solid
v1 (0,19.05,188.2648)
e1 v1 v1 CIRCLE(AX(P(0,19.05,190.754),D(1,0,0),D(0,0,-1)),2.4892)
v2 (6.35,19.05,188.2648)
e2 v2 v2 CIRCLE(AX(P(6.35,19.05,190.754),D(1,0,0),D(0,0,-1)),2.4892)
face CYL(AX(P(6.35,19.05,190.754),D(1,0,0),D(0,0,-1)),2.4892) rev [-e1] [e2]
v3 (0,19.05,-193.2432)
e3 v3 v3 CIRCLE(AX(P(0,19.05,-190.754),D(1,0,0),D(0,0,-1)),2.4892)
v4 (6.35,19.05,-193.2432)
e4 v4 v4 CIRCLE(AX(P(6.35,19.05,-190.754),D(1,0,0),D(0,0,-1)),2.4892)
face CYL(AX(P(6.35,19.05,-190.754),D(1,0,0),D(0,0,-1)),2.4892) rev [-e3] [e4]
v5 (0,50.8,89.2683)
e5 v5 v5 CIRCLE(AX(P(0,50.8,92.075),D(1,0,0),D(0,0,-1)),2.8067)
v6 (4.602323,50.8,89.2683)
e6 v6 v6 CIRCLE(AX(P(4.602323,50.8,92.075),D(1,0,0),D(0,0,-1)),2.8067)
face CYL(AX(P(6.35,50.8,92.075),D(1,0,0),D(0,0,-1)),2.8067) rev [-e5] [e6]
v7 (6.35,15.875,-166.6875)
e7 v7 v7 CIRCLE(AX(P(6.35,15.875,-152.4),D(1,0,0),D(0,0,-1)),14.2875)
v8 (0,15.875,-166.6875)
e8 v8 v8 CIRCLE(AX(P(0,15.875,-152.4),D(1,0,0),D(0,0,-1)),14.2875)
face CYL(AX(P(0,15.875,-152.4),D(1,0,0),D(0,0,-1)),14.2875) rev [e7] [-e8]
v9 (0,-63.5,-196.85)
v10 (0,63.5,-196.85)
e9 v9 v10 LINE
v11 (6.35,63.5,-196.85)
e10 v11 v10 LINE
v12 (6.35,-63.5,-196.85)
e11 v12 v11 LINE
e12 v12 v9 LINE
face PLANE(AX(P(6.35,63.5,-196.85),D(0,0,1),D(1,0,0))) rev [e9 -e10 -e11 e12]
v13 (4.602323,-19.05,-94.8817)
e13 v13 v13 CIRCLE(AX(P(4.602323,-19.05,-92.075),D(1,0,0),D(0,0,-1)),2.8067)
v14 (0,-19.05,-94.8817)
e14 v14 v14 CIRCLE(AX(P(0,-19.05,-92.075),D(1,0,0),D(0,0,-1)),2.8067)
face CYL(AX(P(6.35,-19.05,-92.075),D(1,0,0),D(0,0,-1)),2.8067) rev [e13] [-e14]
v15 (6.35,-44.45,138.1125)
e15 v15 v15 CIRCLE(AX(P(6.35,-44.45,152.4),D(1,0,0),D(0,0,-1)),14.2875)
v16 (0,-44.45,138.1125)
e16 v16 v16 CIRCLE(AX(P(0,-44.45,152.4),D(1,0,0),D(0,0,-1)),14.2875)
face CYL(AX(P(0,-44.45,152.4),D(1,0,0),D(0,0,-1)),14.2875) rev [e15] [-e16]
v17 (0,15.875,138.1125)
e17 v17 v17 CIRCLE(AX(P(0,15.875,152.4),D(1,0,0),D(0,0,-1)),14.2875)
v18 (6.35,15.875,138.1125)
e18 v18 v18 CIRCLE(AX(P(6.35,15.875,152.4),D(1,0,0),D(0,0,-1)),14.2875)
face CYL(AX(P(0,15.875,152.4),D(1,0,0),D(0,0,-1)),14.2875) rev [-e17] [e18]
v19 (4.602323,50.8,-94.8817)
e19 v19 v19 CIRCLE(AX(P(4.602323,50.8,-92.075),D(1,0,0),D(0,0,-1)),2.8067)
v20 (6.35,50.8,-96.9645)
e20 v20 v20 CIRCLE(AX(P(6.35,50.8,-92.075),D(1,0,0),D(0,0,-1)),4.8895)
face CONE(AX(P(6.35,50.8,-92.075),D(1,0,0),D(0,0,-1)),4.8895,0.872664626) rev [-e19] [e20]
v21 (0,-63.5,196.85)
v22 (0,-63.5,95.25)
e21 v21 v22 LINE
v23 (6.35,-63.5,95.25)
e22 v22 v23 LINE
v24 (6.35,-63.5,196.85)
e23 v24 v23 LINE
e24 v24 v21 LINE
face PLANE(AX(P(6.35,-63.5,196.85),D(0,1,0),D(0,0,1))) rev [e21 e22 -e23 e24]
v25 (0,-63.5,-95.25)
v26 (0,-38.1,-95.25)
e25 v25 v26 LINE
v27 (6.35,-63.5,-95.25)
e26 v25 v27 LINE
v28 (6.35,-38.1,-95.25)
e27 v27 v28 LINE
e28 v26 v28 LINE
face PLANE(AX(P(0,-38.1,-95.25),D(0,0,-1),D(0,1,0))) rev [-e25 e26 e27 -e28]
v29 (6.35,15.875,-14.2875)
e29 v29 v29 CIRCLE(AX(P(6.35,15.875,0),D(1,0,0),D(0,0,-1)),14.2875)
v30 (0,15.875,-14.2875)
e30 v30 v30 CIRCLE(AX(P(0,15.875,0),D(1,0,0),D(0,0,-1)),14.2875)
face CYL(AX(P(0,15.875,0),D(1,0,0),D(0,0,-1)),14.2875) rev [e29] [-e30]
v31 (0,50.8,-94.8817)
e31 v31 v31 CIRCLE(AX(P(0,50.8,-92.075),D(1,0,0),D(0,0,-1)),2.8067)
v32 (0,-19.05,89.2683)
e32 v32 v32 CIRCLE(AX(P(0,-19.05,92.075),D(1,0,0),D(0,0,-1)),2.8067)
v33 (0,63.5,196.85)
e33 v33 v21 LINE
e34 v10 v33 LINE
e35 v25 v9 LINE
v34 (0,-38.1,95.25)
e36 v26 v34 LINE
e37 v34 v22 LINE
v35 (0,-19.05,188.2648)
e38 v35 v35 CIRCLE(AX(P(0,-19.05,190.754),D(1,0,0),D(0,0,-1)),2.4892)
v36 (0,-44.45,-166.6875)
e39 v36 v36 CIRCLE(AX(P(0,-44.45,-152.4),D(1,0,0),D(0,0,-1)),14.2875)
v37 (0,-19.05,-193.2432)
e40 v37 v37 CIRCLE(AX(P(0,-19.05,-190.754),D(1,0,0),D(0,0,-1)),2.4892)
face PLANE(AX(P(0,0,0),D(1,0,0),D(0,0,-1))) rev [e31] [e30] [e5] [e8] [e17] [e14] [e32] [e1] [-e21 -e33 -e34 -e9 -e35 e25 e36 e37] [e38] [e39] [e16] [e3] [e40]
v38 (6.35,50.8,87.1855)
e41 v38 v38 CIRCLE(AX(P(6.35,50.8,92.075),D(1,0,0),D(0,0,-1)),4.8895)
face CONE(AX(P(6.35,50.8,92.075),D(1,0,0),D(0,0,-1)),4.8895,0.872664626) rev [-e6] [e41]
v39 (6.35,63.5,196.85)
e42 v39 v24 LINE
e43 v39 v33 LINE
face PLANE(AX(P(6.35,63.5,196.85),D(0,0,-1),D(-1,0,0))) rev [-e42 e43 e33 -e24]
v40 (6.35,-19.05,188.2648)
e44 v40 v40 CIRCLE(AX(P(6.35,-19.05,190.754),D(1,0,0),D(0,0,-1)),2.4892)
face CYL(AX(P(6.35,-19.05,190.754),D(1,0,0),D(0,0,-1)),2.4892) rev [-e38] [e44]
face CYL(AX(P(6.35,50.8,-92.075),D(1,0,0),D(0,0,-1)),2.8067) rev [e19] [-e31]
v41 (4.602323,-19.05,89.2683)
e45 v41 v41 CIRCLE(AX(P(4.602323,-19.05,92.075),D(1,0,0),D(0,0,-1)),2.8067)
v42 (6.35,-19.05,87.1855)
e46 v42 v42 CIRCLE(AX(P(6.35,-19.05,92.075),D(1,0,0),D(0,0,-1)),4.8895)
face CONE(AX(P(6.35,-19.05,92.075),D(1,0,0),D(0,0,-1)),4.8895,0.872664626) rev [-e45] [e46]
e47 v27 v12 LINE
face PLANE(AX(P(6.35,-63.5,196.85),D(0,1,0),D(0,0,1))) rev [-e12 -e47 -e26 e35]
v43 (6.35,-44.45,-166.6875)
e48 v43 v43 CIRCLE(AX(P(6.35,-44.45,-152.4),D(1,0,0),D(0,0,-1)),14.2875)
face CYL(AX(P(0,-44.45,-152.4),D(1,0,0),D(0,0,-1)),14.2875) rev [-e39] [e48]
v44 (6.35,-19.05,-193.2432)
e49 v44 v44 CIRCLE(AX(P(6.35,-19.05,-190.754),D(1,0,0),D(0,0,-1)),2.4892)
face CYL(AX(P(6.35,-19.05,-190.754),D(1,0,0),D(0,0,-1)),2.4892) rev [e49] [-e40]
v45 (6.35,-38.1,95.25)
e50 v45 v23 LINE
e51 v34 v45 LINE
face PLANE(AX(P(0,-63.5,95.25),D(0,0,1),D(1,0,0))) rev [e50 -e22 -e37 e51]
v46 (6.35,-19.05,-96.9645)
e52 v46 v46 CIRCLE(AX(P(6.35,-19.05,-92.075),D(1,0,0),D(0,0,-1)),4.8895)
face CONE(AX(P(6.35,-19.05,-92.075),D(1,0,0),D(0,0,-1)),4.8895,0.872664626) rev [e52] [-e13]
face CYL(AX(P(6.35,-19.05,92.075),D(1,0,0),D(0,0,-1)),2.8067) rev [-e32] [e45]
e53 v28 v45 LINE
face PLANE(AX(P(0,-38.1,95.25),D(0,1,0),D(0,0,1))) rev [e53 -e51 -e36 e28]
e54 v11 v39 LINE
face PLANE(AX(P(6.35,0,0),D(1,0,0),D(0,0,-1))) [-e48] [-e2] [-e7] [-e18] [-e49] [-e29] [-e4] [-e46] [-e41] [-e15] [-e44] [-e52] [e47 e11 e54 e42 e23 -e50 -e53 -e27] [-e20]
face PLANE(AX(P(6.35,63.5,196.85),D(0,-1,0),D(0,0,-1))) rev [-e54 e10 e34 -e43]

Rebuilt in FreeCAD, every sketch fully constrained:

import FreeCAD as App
import Part
import Sketcher

V = App.Vector
Q = App.Units.Quantity


def add_polygon(sketch, points):
    """Adds a closed chain of lines whose ends are joined by coincident constraints."""
    first, n = sketch.GeometryCount, len(points)
    for a, b in zip(points, points[1:] + points[:1]):
        sketch.addGeometry(Part.LineSegment(App.Vector(*a, 0), App.Vector(*b, 0)), False)
    for i in range(n):
        sketch.addConstraint(Sketcher.Constraint("Coincident", first + i, 2, first + (i + 1) % n, 1))

doc = App.newDocument("Part")
body = doc.addObject("PartDesign::Body", "Body")

# Sketch on YZ plane
sketch1 = body.newObject("Sketcher::SketchObject", "Sketch")
sketch1.AttachmentSupport = (doc.getObject("YZ_Plane"), [""])
sketch1.MapMode = "FlatFace"
add_polygon(sketch1, [(64, 197), (-64, 197), (-64, -197), (64, -197)])  # lines 0-3
sketch1.addConstraint(Sketcher.Constraint("Horizontal", 0))
sketch1.addConstraint(Sketcher.Constraint("Vertical", 1))
sketch1.addConstraint(Sketcher.Constraint("Horizontal", 2))
sketch1.addConstraint(Sketcher.Constraint("Vertical", 3))
sketch1.addConstraint(Sketcher.Constraint("Symmetric", 0, 2, 2, 2, -1, 1))
sketch1.addConstraint(Sketcher.Constraint("DistanceX", 0, 2, 0, 1, Q("5 in")))
sketch1.addConstraint(Sketcher.Constraint("DistanceY", 1, 2, 1, 1, Q("15.5 in")))
pad1 = body.newObject("PartDesign::Pad", "Pad")
pad1.Profile = sketch1
pad1.Length = Q("0.25 in")

# Sketch on YZ plane
sketch2 = body.newObject("Sketcher::SketchObject", "Sketch001")
sketch2.AttachmentSupport = (doc.getObject("YZ_Plane"), [""])
sketch2.MapMode = "FlatFace"
sketch2.AttachmentOffset = App.Placement(V(0, 0, 0.25 * 25.4), App.Rotation())
sketch2.addGeometry(Part.Circle(V(16, 0, 0), V(0, 0, 1), 14), False)
sketch2.addGeometry(Part.Circle(V(16, 152, 0), V(0, 0, 1), 14), False)
sketch2.addGeometry(Part.Circle(V(16, -152, 0), V(0, 0, 1), 14), False)
sketch2.addGeometry(Part.Circle(V(-44, 152, 0), V(0, 0, 1), 14), False)
sketch2.addGeometry(Part.Circle(V(-44, -152, 0), V(0, 0, 1), 14), False)
sketch2.addConstraint(Sketcher.Constraint("Equal", 0, 1))
sketch2.addConstraint(Sketcher.Constraint("Equal", 1, 2))
sketch2.addConstraint(Sketcher.Constraint("Equal", 2, 3))
sketch2.addConstraint(Sketcher.Constraint("Equal", 3, 4))
sketch2.addConstraint(Sketcher.Constraint("Symmetric", 1, 3, 2, 3, -1))
sketch2.addConstraint(Sketcher.Constraint("Symmetric", 3, 3, 4, 3, -1))
sketch2.addConstraint(Sketcher.Constraint("PointOnObject", 0, 3, -1))
sketch2.addConstraint(Sketcher.Constraint("Horizontal", 1, 3, 3, 3))
sketch2.addConstraint(Sketcher.Constraint("Vertical", 0, 3, 1, 3))
sketch2.addConstraint(Sketcher.Constraint("Diameter", 0, Q("1.125 in")))
sketch2.addConstraint(Sketcher.Constraint("DistanceY", -1, 1, 1, 3, Q("6 in")))
sketch2.addConstraint(Sketcher.Constraint("DistanceX", 3, 3, -1, 1, Q("1.75 in")))
sketch2.addConstraint(Sketcher.Constraint("DistanceX", -1, 1, 0, 3, Q("0.625 in")))
pocket1 = body.newObject("PartDesign::Pocket", "Pocket")
pocket1.Profile = sketch2
pocket1.Type = "ThroughAll"

# Sketch on YZ plane
sketch3 = body.newObject("Sketcher::SketchObject", "Sketch002")
sketch3.AttachmentSupport = (doc.getObject("YZ_Plane"), [""])
sketch3.MapMode = "FlatFace"
sketch3.AttachmentOffset = App.Placement(V(0, 0, 0.25 * 25.4), App.Rotation())
sketch3.addGeometry(Part.Circle(V(19.1, 190.8, 0), V(0, 0, 1), 2.5), False)
sketch3.addGeometry(Part.Circle(V(-19.1, 190.8, 0), V(0, 0, 1), 2.5), False)
sketch3.addGeometry(Part.Circle(V(19.1, -190.8, 0), V(0, 0, 1), 2.5), False)
sketch3.addGeometry(Part.Circle(V(-19.1, -190.8, 0), V(0, 0, 1), 2.5), False)
sketch3.addConstraint(Sketcher.Constraint("Equal", 0, 1))
sketch3.addConstraint(Sketcher.Constraint("Equal", 1, 2))
sketch3.addConstraint(Sketcher.Constraint("Equal", 2, 3))
sketch3.addConstraint(Sketcher.Constraint("Symmetric", 1, 3, 2, 3, -1, 1))
sketch3.addConstraint(Sketcher.Constraint("Symmetric", 0, 3, 3, 3, -1, 1))
sketch3.addConstraint(Sketcher.Constraint("Symmetric", 0, 3, 1, 3, -2))
sketch3.addConstraint(Sketcher.Constraint("Diameter", 0, Q("0.196 in")))
sketch3.addConstraint(Sketcher.Constraint("DistanceX", 1, 3, 0, 3, Q("1.5 in")))
sketch3.addConstraint(Sketcher.Constraint("DistanceY", -1, 1, 0, 3, Q("7.51 in")))
doc.recompute()
hole = body.newObject("PartDesign::Hole", "Hole")
hole.Profile = sketch3
hole.ThreadType = "None"
hole.Diameter = Q("0.196 in")
hole.DepthType = "ThroughAll"

# Sketch on YZ plane
sketch4 = body.newObject("Sketcher::SketchObject", "Sketch003")
sketch4.AttachmentSupport = (doc.getObject("YZ_Plane"), [""])
sketch4.MapMode = "FlatFace"
sketch4.AttachmentOffset = App.Placement(V(0, 0, 0.25 * 25.4), App.Rotation())
sketch4.addGeometry(Part.Circle(V(50.8, 92.1, 0), V(0, 0, 1), 2.8), False)
sketch4.addGeometry(Part.Circle(V(50.8, -92.1, 0), V(0, 0, 1), 2.8), False)
sketch4.addGeometry(Part.Circle(V(-19.1, 92.1, 0), V(0, 0, 1), 2.8), False)
sketch4.addGeometry(Part.Circle(V(-19.1, -92.1, 0), V(0, 0, 1), 2.8), False)
sketch4.addConstraint(Sketcher.Constraint("Equal", 0, 1))
sketch4.addConstraint(Sketcher.Constraint("Equal", 1, 2))
sketch4.addConstraint(Sketcher.Constraint("Equal", 2, 3))
sketch4.addConstraint(Sketcher.Constraint("Symmetric", 0, 3, 1, 3, -1))
sketch4.addConstraint(Sketcher.Constraint("Symmetric", 2, 3, 3, 3, -1))
sketch4.addConstraint(Sketcher.Constraint("Horizontal", 0, 3, 2, 3))
sketch4.addConstraint(Sketcher.Constraint("Diameter", 0, Q("0.221 in")))
sketch4.addConstraint(Sketcher.Constraint("DistanceX", -1, 1, 0, 3, Q("2 in")))
sketch4.addConstraint(Sketcher.Constraint("DistanceX", 2, 3, -1, 1, Q("0.75 in")))
sketch4.addConstraint(Sketcher.Constraint("DistanceY", 1, 3, 0, 3, Q("7.25 in")))
doc.recompute()
hole2 = body.newObject("PartDesign::Hole", "Hole001")
hole2.Profile = sketch4
hole2.ThreadType = "None"
hole2.Diameter = Q("0.221 in")
hole2.DepthType = "ThroughAll"
hole2.HoleCutType = "Countersink"
hole2.HoleCutDiameter = Q("0.385 in")
hole2.HoleCutCountersinkAngle = 100

# Sketch on YZ plane
sketch5 = body.newObject("Sketcher::SketchObject", "Sketch004")
sketch5.AttachmentSupport = (doc.getObject("YZ_Plane"), [""])
sketch5.MapMode = "FlatFace"
sketch5.AttachmentOffset = App.Placement(V(0, 0, 0.25 * 25.4), App.Rotation())
add_polygon(sketch5, [(-38, 95), (-64, 95), (-64, -95), (-38, -95)])  # lines 0-3
sketch5.addConstraint(Sketcher.Constraint("Horizontal", 0))
sketch5.addConstraint(Sketcher.Constraint("Vertical", 1))
sketch5.addConstraint(Sketcher.Constraint("Horizontal", 2))
sketch5.addConstraint(Sketcher.Constraint("Vertical", 3))
sketch5.addConstraint(Sketcher.Constraint("DistanceX", 0, 2, 0, 1, Q("1 in")))
sketch5.addConstraint(Sketcher.Constraint("DistanceY", 1, 2, 1, 1, Q("7.5 in")))
sketch5.addConstraint(Sketcher.Constraint("DistanceX", 0, 2, -1, 1, Q("2.5 in")))
sketch5.addConstraint(Sketcher.Constraint("DistanceY", -1, 1, 0, 2, Q("3.75 in")))
pocket2 = body.newObject("PartDesign::Pocket", "Pocket001")
pocket2.Profile = sketch5
pocket2.Type = "ThroughAll"

doc.recompute()
